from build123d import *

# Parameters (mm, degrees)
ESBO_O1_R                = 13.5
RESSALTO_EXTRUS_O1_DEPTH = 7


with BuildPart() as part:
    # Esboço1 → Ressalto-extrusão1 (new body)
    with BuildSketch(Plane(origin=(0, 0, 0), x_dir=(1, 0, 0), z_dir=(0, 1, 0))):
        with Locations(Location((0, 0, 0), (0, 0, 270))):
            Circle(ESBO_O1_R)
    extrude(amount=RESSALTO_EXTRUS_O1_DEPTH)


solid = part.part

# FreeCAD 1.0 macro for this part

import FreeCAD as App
import Part
import Sketcher

V = App.Vector
Q = App.Units.Quantity

doc = App.newDocument("Part")
body = doc.addObject("PartDesign::Body", "Body")

sketch1 = body.newObject("Sketcher::SketchObject", "Sketch")
sketch1.AttachmentSupport = (doc.getObject("XZ_Plane"), [""])
sketch1.MapMode = "FlatFace"
sketch1.addGeometry(Part.Circle(V(0, 0, 0), V(0, 0, 1), 14), False)
sketch1.addConstraint(Sketcher.Constraint("Coincident", 0, 3, -1, 1))
sketch1.addConstraint(Sketcher.Constraint("Diameter", 0, Q("27 mm")))
pad1 = body.newObject("PartDesign::Pad", "Pad")
pad1.Profile = sketch1
pad1.Length = 7
pad1.Reversed = True

doc.recompute()
